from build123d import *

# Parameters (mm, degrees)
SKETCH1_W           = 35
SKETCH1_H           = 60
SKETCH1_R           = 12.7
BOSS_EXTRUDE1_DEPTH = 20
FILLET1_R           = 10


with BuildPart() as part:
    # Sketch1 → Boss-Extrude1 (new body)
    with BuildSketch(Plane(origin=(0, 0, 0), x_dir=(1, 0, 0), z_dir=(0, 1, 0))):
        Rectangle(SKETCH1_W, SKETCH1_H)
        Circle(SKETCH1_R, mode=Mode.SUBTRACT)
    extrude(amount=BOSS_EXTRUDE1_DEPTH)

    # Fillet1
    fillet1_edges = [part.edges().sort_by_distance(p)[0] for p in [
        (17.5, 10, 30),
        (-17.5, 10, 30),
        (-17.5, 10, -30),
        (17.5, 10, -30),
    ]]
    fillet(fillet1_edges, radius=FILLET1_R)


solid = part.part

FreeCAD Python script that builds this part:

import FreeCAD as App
import Part
import Sketcher

V = App.Vector
Q = App.Units.Quantity


def edges_at(feature, points):
    """Names of the edges that pass closest to the given points."""
    edges = feature.Shape.Edges
    near = lambda p: min(range(len(edges)), key=lambda i: edges[i].distToShape(Part.Vertex(*p))[0])
    return sorted({f"Edge{near(p) + 1}" for p in points})

doc = App.newDocument("Part")
body = doc.addObject("PartDesign::Body", "Body")

# Sketch on XZ plane
sketch1 = body.newObject("Sketcher::SketchObject", "Sketch")
sketch1.AttachmentSupport = (doc.getObject("XZ_Plane"), [""])
sketch1.MapMode = "FlatFace"
sketch1.addGeometry(Part.LineSegment(V(-17.5, -30, 0), V(-17.5, 30, 0)), False)
sketch1.addGeometry(Part.LineSegment(V(-17.5, 30, 0), V(17.5, 30, 0)), False)
sketch1.addGeometry(Part.LineSegment(V(17.5, 30, 0), V(17.5, -30, 0)), False)
sketch1.addGeometry(Part.LineSegment(V(17.5, -30, 0), V(-17.5, -30, 0)), False)
sketch1.addGeometry(Part.Circle(V(0, 0, 0), V(0, 0, 1), 12.7), False)
sketch1.addConstraint(Sketcher.Constraint("Coincident", 0, 2, 1, 1))
sketch1.addConstraint(Sketcher.Constraint("Coincident", 1, 2, 2, 1))
sketch1.addConstraint(Sketcher.Constraint("Coincident", 2, 2, 3, 1))
sketch1.addConstraint(Sketcher.Constraint("Coincident", 3, 2, 0, 1))
sketch1.addConstraint(Sketcher.Constraint("Vertical", 0))
sketch1.addConstraint(Sketcher.Constraint("Horizontal", 1))
sketch1.addConstraint(Sketcher.Constraint("Vertical", 2))
sketch1.addConstraint(Sketcher.Constraint("Horizontal", 3))
sketch1.addConstraint(Sketcher.Constraint("Coincident", 4, 3, -1, 1))
sketch1.addConstraint(Sketcher.Constraint("Symmetric", 0, 2, 2, 2, -1, 1))
sketch1.addConstraint(Sketcher.Constraint("Diameter", 4, Q("25.4 mm")))
sketch1.addConstraint(Sketcher.Constraint("DistanceX", 1, 1, 1, 2, Q("35 mm")))
sketch1.addConstraint(Sketcher.Constraint("DistanceY", 0, 1, 0, 2, Q("60 mm")))
pad1 = body.newObject("PartDesign::Pad", "Pad")
pad1.Profile = sketch1
pad1.Length = 20
pad1.Reversed = True
doc.recompute()

fillet = body.newObject("PartDesign::Fillet", "Fillet")
fillet.Base = (pad1, edges_at(pad1, [
    (17.5, 10, 30),
    (-17.5, 10, 30),
    (-17.5, 10, -30),
    (17.5, 10, -30),
]))
fillet.Radius = 10

doc.recompute()
